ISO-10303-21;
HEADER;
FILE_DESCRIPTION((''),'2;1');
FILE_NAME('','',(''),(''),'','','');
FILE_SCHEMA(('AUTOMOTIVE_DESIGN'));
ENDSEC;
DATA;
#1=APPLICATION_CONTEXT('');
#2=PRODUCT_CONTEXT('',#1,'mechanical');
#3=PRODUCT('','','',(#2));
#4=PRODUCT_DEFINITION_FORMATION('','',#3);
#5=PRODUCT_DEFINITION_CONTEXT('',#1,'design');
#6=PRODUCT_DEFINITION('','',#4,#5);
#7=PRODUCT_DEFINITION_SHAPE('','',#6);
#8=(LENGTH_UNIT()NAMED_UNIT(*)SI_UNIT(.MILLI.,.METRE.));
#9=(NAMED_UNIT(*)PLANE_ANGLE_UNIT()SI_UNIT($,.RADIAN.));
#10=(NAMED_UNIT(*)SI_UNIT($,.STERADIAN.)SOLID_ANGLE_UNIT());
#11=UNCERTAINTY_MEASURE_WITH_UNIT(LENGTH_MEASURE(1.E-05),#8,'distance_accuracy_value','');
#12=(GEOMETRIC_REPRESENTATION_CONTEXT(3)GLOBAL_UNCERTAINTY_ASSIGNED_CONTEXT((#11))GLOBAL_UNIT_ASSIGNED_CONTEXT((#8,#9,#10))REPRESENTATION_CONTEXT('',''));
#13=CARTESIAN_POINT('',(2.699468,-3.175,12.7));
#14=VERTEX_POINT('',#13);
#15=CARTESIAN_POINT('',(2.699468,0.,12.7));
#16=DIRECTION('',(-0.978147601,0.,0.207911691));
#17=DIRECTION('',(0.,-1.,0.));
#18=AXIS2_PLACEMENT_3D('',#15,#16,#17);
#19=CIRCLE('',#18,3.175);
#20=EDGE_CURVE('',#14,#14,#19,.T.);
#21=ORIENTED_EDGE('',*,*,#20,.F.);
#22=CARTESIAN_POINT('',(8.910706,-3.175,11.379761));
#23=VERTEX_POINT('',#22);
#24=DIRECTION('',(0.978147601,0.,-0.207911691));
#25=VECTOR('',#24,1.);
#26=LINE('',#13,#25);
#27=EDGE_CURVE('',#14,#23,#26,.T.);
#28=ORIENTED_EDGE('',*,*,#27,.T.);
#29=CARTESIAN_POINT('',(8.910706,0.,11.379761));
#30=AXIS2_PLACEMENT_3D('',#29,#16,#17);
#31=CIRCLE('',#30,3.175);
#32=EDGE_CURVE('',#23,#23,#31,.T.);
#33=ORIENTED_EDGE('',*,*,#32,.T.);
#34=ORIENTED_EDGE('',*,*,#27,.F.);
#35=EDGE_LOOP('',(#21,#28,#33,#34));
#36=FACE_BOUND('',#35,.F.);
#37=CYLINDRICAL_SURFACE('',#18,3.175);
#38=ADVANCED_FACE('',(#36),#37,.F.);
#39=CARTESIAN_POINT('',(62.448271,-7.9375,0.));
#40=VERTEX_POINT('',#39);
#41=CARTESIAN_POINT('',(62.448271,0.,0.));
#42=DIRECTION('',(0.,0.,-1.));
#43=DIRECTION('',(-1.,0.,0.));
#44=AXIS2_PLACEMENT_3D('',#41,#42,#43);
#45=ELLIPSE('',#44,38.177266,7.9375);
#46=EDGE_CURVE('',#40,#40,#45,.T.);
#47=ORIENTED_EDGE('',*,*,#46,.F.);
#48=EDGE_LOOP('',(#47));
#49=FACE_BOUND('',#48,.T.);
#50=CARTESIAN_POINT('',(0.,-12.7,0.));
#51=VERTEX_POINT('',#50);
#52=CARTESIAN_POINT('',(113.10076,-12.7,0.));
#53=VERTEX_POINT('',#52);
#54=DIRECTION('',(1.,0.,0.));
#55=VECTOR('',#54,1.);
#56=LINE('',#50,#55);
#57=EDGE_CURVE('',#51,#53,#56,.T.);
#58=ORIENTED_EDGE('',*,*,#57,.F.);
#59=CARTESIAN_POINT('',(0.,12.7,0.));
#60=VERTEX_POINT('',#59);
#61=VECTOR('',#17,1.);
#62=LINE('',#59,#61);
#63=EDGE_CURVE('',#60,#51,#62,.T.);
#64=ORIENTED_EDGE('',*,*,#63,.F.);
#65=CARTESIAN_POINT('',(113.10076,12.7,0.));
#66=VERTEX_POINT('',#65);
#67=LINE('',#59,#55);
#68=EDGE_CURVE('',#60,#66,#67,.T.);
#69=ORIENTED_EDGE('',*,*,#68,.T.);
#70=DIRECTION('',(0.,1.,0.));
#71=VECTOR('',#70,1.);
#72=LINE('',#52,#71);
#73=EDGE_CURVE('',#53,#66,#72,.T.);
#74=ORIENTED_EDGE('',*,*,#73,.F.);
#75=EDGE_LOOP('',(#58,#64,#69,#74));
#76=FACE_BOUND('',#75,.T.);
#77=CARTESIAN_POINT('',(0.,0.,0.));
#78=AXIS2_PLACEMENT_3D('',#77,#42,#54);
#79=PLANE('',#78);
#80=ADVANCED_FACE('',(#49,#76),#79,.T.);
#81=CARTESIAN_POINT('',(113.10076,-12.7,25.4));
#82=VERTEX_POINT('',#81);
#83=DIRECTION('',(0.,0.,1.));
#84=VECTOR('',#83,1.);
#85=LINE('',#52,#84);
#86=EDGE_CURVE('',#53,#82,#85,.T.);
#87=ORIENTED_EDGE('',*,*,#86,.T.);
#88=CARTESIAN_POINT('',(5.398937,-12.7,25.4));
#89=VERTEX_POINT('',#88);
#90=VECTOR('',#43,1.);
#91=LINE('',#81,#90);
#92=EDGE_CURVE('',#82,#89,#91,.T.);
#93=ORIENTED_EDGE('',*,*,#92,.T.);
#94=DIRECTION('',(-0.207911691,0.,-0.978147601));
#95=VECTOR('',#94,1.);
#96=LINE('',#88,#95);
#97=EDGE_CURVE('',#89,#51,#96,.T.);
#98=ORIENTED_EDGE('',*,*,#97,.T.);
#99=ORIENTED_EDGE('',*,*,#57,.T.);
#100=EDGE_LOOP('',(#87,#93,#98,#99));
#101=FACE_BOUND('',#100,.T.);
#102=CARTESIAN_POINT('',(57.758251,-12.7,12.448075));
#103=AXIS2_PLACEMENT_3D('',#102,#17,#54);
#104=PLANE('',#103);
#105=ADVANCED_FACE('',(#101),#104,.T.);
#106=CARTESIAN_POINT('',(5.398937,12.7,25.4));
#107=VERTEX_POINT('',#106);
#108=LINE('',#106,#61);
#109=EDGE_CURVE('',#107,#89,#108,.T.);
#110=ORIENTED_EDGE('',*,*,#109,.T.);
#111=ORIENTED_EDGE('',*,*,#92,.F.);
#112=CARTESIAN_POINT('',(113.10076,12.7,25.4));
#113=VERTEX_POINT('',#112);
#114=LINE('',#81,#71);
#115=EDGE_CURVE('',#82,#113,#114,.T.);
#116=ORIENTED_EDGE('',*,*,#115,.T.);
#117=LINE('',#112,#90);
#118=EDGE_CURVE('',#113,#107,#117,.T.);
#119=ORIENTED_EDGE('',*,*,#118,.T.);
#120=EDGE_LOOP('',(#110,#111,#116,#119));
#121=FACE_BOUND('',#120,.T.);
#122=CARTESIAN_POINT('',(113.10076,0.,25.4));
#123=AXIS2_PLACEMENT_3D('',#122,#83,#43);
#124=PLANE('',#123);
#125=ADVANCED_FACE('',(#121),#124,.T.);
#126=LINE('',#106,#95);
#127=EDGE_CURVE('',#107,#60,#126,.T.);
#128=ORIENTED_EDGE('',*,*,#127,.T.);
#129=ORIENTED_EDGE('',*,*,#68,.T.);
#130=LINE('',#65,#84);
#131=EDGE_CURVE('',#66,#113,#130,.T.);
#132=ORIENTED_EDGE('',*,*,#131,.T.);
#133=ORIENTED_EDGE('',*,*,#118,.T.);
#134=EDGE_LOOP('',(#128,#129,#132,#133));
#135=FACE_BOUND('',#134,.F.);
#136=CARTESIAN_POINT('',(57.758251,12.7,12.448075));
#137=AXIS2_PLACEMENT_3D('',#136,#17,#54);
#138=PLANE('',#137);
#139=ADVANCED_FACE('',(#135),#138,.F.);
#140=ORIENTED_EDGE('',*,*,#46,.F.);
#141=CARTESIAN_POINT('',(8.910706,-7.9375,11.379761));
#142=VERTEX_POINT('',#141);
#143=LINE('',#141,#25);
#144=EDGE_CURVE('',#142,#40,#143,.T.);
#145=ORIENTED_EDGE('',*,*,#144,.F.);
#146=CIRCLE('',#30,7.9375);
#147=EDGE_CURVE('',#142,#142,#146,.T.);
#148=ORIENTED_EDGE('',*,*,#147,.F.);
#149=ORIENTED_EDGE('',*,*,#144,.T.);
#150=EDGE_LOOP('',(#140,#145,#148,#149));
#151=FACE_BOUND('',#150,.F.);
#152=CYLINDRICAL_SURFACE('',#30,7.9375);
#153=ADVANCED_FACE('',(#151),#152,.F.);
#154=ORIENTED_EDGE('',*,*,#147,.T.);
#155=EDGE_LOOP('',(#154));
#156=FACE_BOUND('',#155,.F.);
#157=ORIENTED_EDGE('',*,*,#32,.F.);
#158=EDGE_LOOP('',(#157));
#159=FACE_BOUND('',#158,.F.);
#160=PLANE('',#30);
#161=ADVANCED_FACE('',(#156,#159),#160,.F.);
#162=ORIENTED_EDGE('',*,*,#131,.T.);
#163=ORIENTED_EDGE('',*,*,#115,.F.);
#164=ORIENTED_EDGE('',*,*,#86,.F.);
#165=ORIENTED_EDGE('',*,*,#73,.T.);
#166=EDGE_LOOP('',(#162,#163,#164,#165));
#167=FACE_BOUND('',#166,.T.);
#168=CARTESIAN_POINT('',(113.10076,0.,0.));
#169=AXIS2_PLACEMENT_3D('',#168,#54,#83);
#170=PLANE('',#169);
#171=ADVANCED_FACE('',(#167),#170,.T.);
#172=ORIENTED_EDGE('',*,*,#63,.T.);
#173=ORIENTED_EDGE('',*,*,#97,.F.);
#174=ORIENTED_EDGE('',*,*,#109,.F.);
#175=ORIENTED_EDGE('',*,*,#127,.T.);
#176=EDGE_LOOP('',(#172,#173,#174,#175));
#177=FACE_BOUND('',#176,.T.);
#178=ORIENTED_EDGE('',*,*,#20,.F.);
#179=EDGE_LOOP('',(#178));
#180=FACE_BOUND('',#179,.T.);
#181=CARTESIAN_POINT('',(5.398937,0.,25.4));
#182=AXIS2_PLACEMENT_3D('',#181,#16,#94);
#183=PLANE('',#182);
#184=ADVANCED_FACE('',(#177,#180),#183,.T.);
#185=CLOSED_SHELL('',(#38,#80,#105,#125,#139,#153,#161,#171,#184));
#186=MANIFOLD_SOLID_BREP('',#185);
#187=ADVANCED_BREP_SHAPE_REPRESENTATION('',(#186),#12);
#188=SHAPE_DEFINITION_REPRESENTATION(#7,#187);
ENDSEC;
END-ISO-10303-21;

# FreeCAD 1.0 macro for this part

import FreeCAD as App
import Part
import Sketcher
Q = App.Units.Quantity

doc = App.newDocument("Part")
body = doc.addObject("PartDesign::Body", "Body")

sketch1 = doc.addObject("Sketcher::SketchObject", "Sketch")
body.addObject(sketch1)
sketch1.AttachmentSupport = (doc.XZ_Plane, [""])
sketch1.MapMode = "FlatFace"
sketch1.addGeometry(Part.LineSegment(App.Vector(113, 25, 0), App.Vector(5, 25, 0)), False)
sketch1.addGeometry(Part.LineSegment(App.Vector(5, 25, 0), App.Vector(0, 0, 0)), False)
sketch1.addGeometry(Part.LineSegment(App.Vector(0, 0, 0), App.Vector(113, 0, 0)), False)
sketch1.addGeometry(Part.LineSegment(App.Vector(113, 0, 0), App.Vector(113, 25, 0)), False)
sketch1.addConstraint(Sketcher.Constraint("Coincident", 0, 2, 1, 1))
sketch1.addConstraint(Sketcher.Constraint("Coincident", 1, 2, 2, 1))
sketch1.addConstraint(Sketcher.Constraint("Coincident", 2, 2, 3, 1))
sketch1.addConstraint(Sketcher.Constraint("Coincident", 3, 2, 0, 1))
sketch1.addConstraint(Sketcher.Constraint("Horizontal", 0))
sketch1.addConstraint(Sketcher.Constraint("Horizontal", 2))
sketch1.addConstraint(Sketcher.Constraint("Vertical", 3))
sketch1.addConstraint(Sketcher.Constraint("Coincident", 1, 2, -1, 1))
sketch1.addConstraint(Sketcher.Constraint("DistanceY", 3, 1, 3, 2, Q("1 in")))
sketch1.addConstraint(Sketcher.Constraint("Angle", 1, Q("-102 deg")))
sketch1.addConstraint(Sketcher.Constraint("DistanceX", 2, 1, 2, 2, Q("113.10076 mm")))
pad1 = doc.addObject("PartDesign::Pad", "Pad")
body.addObject(pad1)
pad1.Profile = sketch1
pad1.Length = Q("1 in")
pad1.Midplane = True

sketch2 = doc.addObject("Sketcher::SketchObject", "Sketch001")
body.addObject(sketch2)
sketch2.Placement = App.Placement(App.Vector(0, 0, 0), App.Rotation(App.Vector(0, -1, 0), App.Vector(0.207911691, 0, 0.978147601), App.Vector(-0.978147601, 0, 0.207911691), "ZXY"))
sketch2.addGeometry(Part.Circle(App.Vector(0, 13, 0), App.Vector(0, 0, 1), 3.2), False)
sketch2.addConstraint(Sketcher.Constraint("PointOnObject", 0, 3, -2))
sketch2.addConstraint(Sketcher.Constraint("Diameter", 0, Q("0.25 in")))
sketch2.addConstraint(Sketcher.Constraint("DistanceY", -1, 1, 0, 3, Q("12.983726 mm")))
pocket1 = doc.addObject("PartDesign::Pocket", "Pocket")
body.addObject(pocket1)
pocket1.Profile = sketch2
pocket1.Type = "ThroughAll"

sketch3 = doc.addObject("Sketcher::SketchObject", "Sketch002")
body.addObject(sketch3)
sketch3.Placement = App.Placement(App.Vector(6.211237, 0, -1.320239), App.Rotation(App.Vector(0, -1, 0), App.Vector(0.207911691, 0, 0.978147601), App.Vector(-0.978147601, 0, 0.207911691), "ZXY"))
sketch3.addGeometry(Part.Circle(App.Vector(0, 13, 0), App.Vector(0, 0, 1), 7.9), False)
sketch3.addGeometry(Part.Circle(App.Vector(0, 13, 0), App.Vector(0, 0, 1), 3.2), False)
sketch3.addConstraint(Sketcher.Constraint("Coincident", 1, 3, 0, 3))
sketch3.addConstraint(Sketcher.Constraint("PointOnObject", 0, 3, -2))
sketch3.addConstraint(Sketcher.Constraint("Diameter", 1, Q("0.25 in")))
sketch3.addConstraint(Sketcher.Constraint("Diameter", 0, Q("0.625 in")))
sketch3.addConstraint(Sketcher.Constraint("DistanceY", -1, 1, 0, 3, Q("12.983726 mm")))
pocket2 = doc.addObject("PartDesign::Pocket", "Pocket001")
body.addObject(pocket2)
pocket2.Profile = sketch3
pocket2.Type = "ThroughAll"

doc.recompute()
